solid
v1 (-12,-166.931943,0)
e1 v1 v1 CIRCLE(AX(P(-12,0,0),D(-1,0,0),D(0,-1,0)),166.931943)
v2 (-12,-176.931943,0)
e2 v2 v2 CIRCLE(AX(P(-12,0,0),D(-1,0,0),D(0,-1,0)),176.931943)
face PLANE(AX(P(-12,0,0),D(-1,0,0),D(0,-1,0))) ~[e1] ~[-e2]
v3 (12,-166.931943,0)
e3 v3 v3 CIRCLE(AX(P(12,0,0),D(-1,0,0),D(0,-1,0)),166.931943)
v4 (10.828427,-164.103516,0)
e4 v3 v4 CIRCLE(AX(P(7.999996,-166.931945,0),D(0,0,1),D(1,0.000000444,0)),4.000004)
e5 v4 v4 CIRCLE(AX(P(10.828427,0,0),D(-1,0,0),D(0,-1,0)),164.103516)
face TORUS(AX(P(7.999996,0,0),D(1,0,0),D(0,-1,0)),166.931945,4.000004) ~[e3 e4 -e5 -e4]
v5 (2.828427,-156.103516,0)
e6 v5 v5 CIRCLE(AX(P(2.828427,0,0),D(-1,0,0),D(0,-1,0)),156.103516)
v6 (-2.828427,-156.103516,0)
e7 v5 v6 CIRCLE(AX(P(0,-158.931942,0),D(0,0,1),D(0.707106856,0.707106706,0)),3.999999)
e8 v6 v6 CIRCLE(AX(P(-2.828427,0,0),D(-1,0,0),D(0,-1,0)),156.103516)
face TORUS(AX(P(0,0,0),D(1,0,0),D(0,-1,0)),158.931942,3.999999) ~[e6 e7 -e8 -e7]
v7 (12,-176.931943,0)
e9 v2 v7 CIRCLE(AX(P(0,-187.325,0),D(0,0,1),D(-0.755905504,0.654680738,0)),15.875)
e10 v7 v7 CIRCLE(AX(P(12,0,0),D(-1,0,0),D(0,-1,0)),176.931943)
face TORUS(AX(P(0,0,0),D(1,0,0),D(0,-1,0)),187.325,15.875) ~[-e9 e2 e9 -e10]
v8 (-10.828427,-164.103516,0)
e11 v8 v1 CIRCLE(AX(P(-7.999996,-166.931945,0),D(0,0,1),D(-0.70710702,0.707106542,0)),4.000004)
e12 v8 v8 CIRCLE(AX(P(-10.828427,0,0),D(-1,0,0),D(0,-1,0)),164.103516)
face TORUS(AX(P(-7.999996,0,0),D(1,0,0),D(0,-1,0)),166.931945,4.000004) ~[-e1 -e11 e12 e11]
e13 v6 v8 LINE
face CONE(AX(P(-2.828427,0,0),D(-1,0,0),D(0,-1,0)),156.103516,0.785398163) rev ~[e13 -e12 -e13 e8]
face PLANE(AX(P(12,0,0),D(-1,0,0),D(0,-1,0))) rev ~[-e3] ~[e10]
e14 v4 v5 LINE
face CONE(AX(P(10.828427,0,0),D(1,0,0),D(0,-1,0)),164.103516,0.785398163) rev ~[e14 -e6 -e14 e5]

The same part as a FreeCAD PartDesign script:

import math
import FreeCAD as App
import Part
import Sketcher

V = App.Vector

doc = App.newDocument("Part")
params = doc.addObject("Spreadsheet::Sheet", "Params")
for row, (alias, value) in enumerate([
    ("sketch1_radius", "3.999999 mm"),
    ("sketch1_height", "10 mm"),
    ("revolution_angle", "360 deg"),
], start=1):
    params.set(f"A{row}", alias)
    params.set(f"B{row}", "=" + value)
    params.setAlias(f"B{row}", alias)

body = doc.addObject("PartDesign::Body", "Body")

# Sketch on XY plane
sketch1 = body.newObject("Sketcher::SketchObject", "Sketch")
sketch1.AttachmentSupport = (doc.getObject("XY_Plane"), [""])
sketch1.MapMode = "FlatFace"
sketch1.addGeometry(Part.ArcOfCircle(Part.Circle(V(0, -158.9, 0), V(0, 0, 1), 4), math.radians(45), math.radians(135)), False)
sketch1.addGeometry(Part.LineSegment(V(-2.8, -156.1, 0), V(-10.8, -164.1, 0)), False)
sketch1.addGeometry(Part.ArcOfCircle(Part.Circle(V(-8, -166.9, 0), V(0, 0, 1), 4), math.radians(135), math.radians(180)), False)
sketch1.addGeometry(Part.LineSegment(V(-12, -166.9, 0), V(-12, -176.9, 0)), False)
sketch1.addGeometry(Part.ArcOfCircle(Part.Circle(V(0, -187.3, 0), V(0, 0, 1), 15.9), math.radians(139), math.radians(401)), False)
sketch1.addGeometry(Part.LineSegment(V(12, -176.9, 0), V(12, -166.9, 0)), False)
sketch1.addGeometry(Part.ArcOfCircle(Part.Circle(V(8, -166.9, 0), V(0, 0, 1), 4), math.radians(0), math.radians(45)), False)
sketch1.addGeometry(Part.LineSegment(V(10.8, -164.1, 0), V(2.8, -156.1, 0)), False)
sketch1.addConstraint(Sketcher.Constraint("Tangent", 0, 2, 1, 1))
sketch1.addConstraint(Sketcher.Constraint("Tangent", 1, 2, 2, 1))
sketch1.addConstraint(Sketcher.Constraint("Tangent", 2, 2, 3, 1))
sketch1.addConstraint(Sketcher.Constraint("Coincident", 3, 2, 4, 1))
sketch1.addConstraint(Sketcher.Constraint("Coincident", 4, 2, 5, 1))
sketch1.addConstraint(Sketcher.Constraint("Tangent", 5, 2, 6, 1))
sketch1.addConstraint(Sketcher.Constraint("Tangent", 6, 2, 7, 1))
sketch1.addConstraint(Sketcher.Constraint("Tangent", 7, 2, 0, 1))
sketch1.addConstraint(Sketcher.Constraint("Vertical", 3))
sketch1.addConstraint(Sketcher.Constraint("Vertical", 5))
sketch1.addConstraint(Sketcher.Constraint("Equal", 2, 6))
sketch1.addConstraint(Sketcher.Constraint("Symmetric", 2, 3, 6, 3, -2))
sketch1.addConstraint(Sketcher.Constraint("PointOnObject", 0, 3, -2))
sketch1.addConstraint(Sketcher.Constraint("PointOnObject", 4, 3, -2))
sketch1.addConstraint(Sketcher.Constraint("Perpendicular", 1, 7))
sketch1.addConstraint(Sketcher.Constraint("Radius", 0, 3.999999))
sketch1.addConstraint(Sketcher.Constraint("DistanceY", 3, 2, 3, 1, 10.0))
sketch1.addConstraint(Sketcher.Constraint("DistanceX", 2, 2, -1, 1, 12.0))
sketch1.addConstraint(Sketcher.Constraint("Radius", 4, 15.875))
sketch1.addConstraint(Sketcher.Constraint("DistanceX", 1, 2, 0, 2, 8.0))
sketch1.addConstraint(Sketcher.Constraint("DistanceY", 4, 3, -1, 1, 187.325))
sketch1.setExpression("Constraints[15]", "Params.sketch1_radius")
sketch1.setExpression("Constraints[16]", "Params.sketch1_height")
revolution = body.newObject("PartDesign::Revolution", "Revolution")
revolution.Profile = sketch1
revolution.ReferenceAxis = (sketch1, ["H_Axis"])
revolution.setExpression("Angle", "Params.revolution_angle")

doc.recompute()
